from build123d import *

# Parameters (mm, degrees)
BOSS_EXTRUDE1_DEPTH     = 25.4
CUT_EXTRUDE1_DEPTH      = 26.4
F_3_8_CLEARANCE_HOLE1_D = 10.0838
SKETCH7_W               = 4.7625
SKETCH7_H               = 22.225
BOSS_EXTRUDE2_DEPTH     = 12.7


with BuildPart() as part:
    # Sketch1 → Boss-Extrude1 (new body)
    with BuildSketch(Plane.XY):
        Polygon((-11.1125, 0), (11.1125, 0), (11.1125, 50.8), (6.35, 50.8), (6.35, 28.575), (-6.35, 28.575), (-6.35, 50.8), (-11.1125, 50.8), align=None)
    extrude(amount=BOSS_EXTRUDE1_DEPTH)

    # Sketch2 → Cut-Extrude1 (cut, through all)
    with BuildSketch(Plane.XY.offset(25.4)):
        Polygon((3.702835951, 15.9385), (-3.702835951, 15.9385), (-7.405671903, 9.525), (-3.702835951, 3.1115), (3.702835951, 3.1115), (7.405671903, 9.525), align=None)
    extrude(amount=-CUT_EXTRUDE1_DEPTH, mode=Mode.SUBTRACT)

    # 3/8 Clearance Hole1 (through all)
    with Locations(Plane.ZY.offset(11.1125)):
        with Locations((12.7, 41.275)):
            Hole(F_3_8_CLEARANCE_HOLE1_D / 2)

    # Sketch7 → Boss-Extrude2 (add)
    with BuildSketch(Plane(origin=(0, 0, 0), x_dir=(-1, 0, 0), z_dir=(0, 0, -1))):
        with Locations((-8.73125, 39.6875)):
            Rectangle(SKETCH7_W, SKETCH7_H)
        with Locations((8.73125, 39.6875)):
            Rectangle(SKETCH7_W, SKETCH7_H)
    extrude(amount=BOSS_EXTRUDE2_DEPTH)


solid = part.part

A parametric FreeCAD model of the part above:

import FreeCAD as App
import Part
import Sketcher
from FreeCAD import Vector
Q = App.Units.Quantity


def add_polygon(sketch, points):
    """Adds a closed chain of lines whose ends are joined by coincident constraints."""
    first, n = sketch.GeometryCount, len(points)
    for a, b in zip(points, points[1:] + points[:1]):
        sketch.addGeometry(Part.LineSegment(App.Vector(*a, 0), App.Vector(*b, 0)), False)
    for i in range(n):
        sketch.addConstraint(Sketcher.Constraint("Coincident", first + i, 2, first + (i + 1) % n, 1))

doc = App.newDocument("Part")
body = doc.addObject("PartDesign::Body", "Body")

# Sketch on XY plane
sketch1 = body.newObject("Sketcher::SketchObject", "Sketch")
sketch1.AttachmentSupport = (doc.getObject("XY_Plane"), [""])
sketch1.MapMode = "FlatFace"
add_polygon(sketch1, [(-11.1, 0), (11.1, 0), (11.1, 50.8), (6.3, 50.8), (6.3, 28.6), (-6.3, 28.6), (-6.3, 50.8), (-11.1, 50.8)])  # lines 0-7
sketch1.addConstraint([
    Sketcher.Constraint("Horizontal", 0),
    Sketcher.Constraint("Vertical", 1),
    Sketcher.Constraint("Horizontal", 2),
    Sketcher.Constraint("Vertical", 3),
    Sketcher.Constraint("Horizontal", 4),
    Sketcher.Constraint("Vertical", 5),
    Sketcher.Constraint("Horizontal", 6),
    Sketcher.Constraint("Vertical", 7),
    Sketcher.Constraint("Symmetric", 0, 2, 7, 2, -1, 1),
    Sketcher.Constraint("Symmetric", 2, 2, 5, 2, -2),
    Sketcher.Constraint("Equal", 0, 3),
    Sketcher.Constraint("DistanceY", 1, 1, 1, 2, Q("2 in")),
    Sketcher.Constraint("DistanceX", 4, 2, 4, 1, Q("0.5 in")),
    Sketcher.Constraint("DistanceX", 0, 1, 0, 2, Q("0.875 in")),
])
pad1 = body.newObject("PartDesign::Pad", "Pad")
pad1.Profile = sketch1
pad1.Length = Q("1 in")

# Sketch on XY plane
sketch2 = body.newObject("Sketcher::SketchObject", "Sketch001")
sketch2.AttachmentSupport = (doc.getObject("XY_Plane"), [""])
sketch2.MapMode = "FlatFace"
sketch2.AttachmentOffset = App.Placement(Vector(0, 0, 1 * 25.4), App.Rotation())
add_polygon(sketch2, [(4, 16), (-4, 16), (-7, 10), (-4, 3), (4, 3), (7, 10)])  # lines 0-5
sketch2.addConstraint([
    Sketcher.Constraint("Horizontal", 0),
    Sketcher.Constraint("Horizontal", 3),
    Sketcher.Constraint("Symmetric", 1, 2, 4, 2, -2),
    Sketcher.Constraint("Parallel", 1, 4),
    Sketcher.Constraint("Parallel", 2, 5),
    Sketcher.Constraint("Vertical", 0, 2, 2, 2),
    Sketcher.Constraint("Vertical", 3, 2, 5, 2),
    Sketcher.Constraint("Angle", 1, Q("-120 deg")),
    Sketcher.Constraint("DistanceY", -1, 1, 1, 2, Q("0.375 in")),
    Sketcher.Constraint("DistanceY", 2, 2, 0, 2, Q("0.505 in")),
    Sketcher.Constraint("DistanceX", 0, 2, 0, 1, 7.405672),
])
pocket1 = body.newObject("PartDesign::Pocket", "Pocket")
pocket1.Profile = sketch2
pocket1.Type = "ThroughAll"

# Sketch on YZ plane
sketch3 = body.newObject("Sketcher::SketchObject", "Sketch002")
sketch3.AttachmentSupport = (doc.getObject("YZ_Plane"), [""])
sketch3.MapMode = "FlatFace"
sketch3.AttachmentOffset = App.Placement(Vector(0, 0, -0.4375 * 25.4), App.Rotation())
sketch3.addGeometry(Part.Circle(Vector(41, 13, 0), Vector(0, 0, 1), 5), False)
sketch3.addConstraint([
    Sketcher.Constraint("Diameter", 0, Q("0.397 in")),
    Sketcher.Constraint("DistanceY", -1, 1, 0, 3, Q("0.5 in")),
    Sketcher.Constraint("DistanceX", -1, 1, 0, 3, Q("1.625 in")),
])
doc.recompute()
hole = body.newObject("PartDesign::Hole", "Hole")
hole.Profile = sketch3
hole.ThreadType = "None"
hole.Diameter = Q("0.397 in")
hole.DepthType = "ThroughAll"
hole.Reversed = True

# Sketch on XY plane
sketch4 = body.newObject("Sketcher::SketchObject", "Sketch003")
sketch4.AttachmentSupport = (doc.getObject("XY_Plane"), [""])
sketch4.MapMode = "FlatFace"
add_polygon(sketch4, [(11.1, 50.8), (11.1, 28.6), (6.3, 28.6), (6.3, 50.8)])  # lines 0-3
add_polygon(sketch4, [(-6.3, 50.8), (-6.3, 28.6), (-11.1, 28.6), (-11.1, 50.8)])  # lines 4-7
sketch4.addConstraint([
    Sketcher.Constraint("Vertical", 0),
    Sketcher.Constraint("Horizontal", 1),
    Sketcher.Constraint("Vertical", 2),
    Sketcher.Constraint("Horizontal", 3),
    Sketcher.Constraint("Vertical", 4),
    Sketcher.Constraint("Horizontal", 5),
    Sketcher.Constraint("Vertical", 6),
    Sketcher.Constraint("Horizontal", 7),
    Sketcher.Constraint("Symmetric", 1, 2, 4, 2, -2),
    Sketcher.Constraint("Symmetric", 3, 2, 6, 2, -2),
    Sketcher.Constraint("DistanceY", -1, 1, 2, 2, Q("2 in")),
    Sketcher.Constraint("DistanceX", 4, 2, 1, 2, Q("0.5 in")),
    Sketcher.Constraint("DistanceX", 1, 2, 1, 1, Q("0.1875 in")),
    Sketcher.Constraint("DistanceY", 0, 2, 0, 1, Q("0.875 in")),
])
pad2 = body.newObject("PartDesign::Pad", "Pad001")
pad2.Profile = sketch4
pad2.Length = Q("0.5 in")
pad2.Reversed = True

doc.recompute()
